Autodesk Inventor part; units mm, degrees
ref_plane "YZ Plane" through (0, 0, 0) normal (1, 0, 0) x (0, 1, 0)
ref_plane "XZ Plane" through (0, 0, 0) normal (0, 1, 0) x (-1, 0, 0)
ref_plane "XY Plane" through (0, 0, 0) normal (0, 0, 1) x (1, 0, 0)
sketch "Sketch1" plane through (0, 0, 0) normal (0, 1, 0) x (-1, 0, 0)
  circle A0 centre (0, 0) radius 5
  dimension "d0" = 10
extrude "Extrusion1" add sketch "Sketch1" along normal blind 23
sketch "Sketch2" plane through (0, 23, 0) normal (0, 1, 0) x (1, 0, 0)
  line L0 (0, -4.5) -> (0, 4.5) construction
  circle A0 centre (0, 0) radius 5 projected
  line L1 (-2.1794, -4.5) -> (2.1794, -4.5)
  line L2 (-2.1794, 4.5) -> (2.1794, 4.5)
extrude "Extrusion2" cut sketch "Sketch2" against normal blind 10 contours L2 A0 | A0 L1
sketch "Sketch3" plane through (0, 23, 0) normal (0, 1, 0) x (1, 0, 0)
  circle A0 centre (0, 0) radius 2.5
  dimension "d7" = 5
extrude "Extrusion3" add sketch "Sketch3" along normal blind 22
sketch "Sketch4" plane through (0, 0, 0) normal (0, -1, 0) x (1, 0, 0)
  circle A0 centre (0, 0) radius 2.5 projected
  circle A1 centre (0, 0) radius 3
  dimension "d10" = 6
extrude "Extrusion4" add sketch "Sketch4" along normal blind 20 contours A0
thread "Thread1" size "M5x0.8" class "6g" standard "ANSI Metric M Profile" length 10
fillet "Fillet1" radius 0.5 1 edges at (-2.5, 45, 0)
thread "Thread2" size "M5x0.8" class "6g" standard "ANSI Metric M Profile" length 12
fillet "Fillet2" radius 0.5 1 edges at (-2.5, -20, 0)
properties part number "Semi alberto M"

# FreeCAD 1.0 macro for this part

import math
import FreeCAD as App
import Part
import Sketcher


def edges_at(feature, points):
    """Names of the edges that pass closest to the given points."""
    edges = feature.Shape.Edges
    near = lambda p: min(range(len(edges)), key=lambda i: edges[i].distToShape(Part.Vertex(*p))[0])
    return sorted({f"Edge{near(p) + 1}" for p in points})

doc = App.newDocument("Part")
params = doc.addObject("Spreadsheet::Sheet", "Params")
for row, (alias, value) in enumerate([
    ("sketch1_diameter", "10 mm"),
    ("pad1_length", "23 mm"),
    ("sketch2_radius", "5 mm"),
    ("pocket1_length", "10 mm"),
    ("sketch3_diameter", "5 mm"),
    ("pad2_length", "22 mm"),
    ("sketch4_diameter", "5 mm"),
    ("pad3_length", "20 mm"),
    ("fillet_radius", "0.5 mm"),
    ("fillet2_radius", "0.5 mm"),
], start=1):
    params.set(f"A{row}", alias)
    params.set(f"B{row}", "=" + value)
    params.setAlias(f"B{row}", alias)

body = doc.addObject("PartDesign::Body", "Body")

# Sketch on XZ plane
sketch1 = body.newObject("Sketcher::SketchObject", "Sketch")
sketch1.AttachmentSupport = (doc.getObject("XZ_Plane"), [""])
sketch1.MapMode = "FlatFace"
sketch1.addGeometry(Part.Circle(App.Vector(0, 0, 0), App.Vector(0, 0, 1), 5), False)
sketch1.addConstraint(Sketcher.Constraint("Coincident", 0, 3, -1, 1))
sketch1.addConstraint(Sketcher.Constraint("Diameter", 0, 10.0))
sketch1.setExpression("Constraints[1]", "Params.sketch1_diameter")
pad1 = body.newObject("PartDesign::Pad", "Pad")
pad1.Profile = sketch1
pad1.setExpression("Length", "Params.pad1_length")
pad1.Reversed = True

# Sketch on XZ plane
sketch2 = body.newObject("Sketcher::SketchObject", "Sketch001")
sketch2.AttachmentSupport = (doc.getObject("XZ_Plane"), [""])
sketch2.MapMode = "FlatFace"
sketch2.AttachmentOffset = App.Placement(App.Vector(0, 0, -23), App.Rotation())
sketch2.addGeometry(Part.LineSegment(App.Vector(-2.2, -4.5, 0), App.Vector(2.2, -4.5, 0)), False)
sketch2.addGeometry(Part.ArcOfCircle(Part.Circle(App.Vector(0, 0, 0), App.Vector(0, 0, 1), 5), math.radians(-116), math.radians(-64)), False)
sketch2.addGeometry(Part.ArcOfCircle(Part.Circle(App.Vector(0, 0, 0), App.Vector(0, 0, 1), 5), math.radians(64), math.radians(116)), False)
sketch2.addGeometry(Part.LineSegment(App.Vector(-2.2, 4.5, 0), App.Vector(2.2, 4.5, 0)), False)
sketch2.addConstraint(Sketcher.Constraint("Coincident", 0, 1, 1, 1))
sketch2.addConstraint(Sketcher.Constraint("Coincident", 1, 2, 0, 2))
sketch2.addConstraint(Sketcher.Constraint("Coincident", 2, 1, 3, 2))
sketch2.addConstraint(Sketcher.Constraint("Coincident", 3, 1, 2, 2))
sketch2.addConstraint(Sketcher.Constraint("Horizontal", 0))
sketch2.addConstraint(Sketcher.Constraint("Horizontal", 3))
sketch2.addConstraint(Sketcher.Constraint("Coincident", 1, 3, -1, 1))
sketch2.addConstraint(Sketcher.Constraint("Coincident", 2, 3, -1, 1))
sketch2.addConstraint(Sketcher.Constraint("Equal", 1, 2))
sketch2.addConstraint(Sketcher.Constraint("Vertical", 1, 2, 2, 1))
sketch2.addConstraint(Sketcher.Constraint("Radius", 1, 5.0))
sketch2.addConstraint(Sketcher.Constraint("DistanceY", 1, 2, 2, 1, 9.0))
sketch2.setExpression("Constraints[10]", "Params.sketch2_radius")
pocket1 = body.newObject("PartDesign::Pocket", "Pocket")
pocket1.Profile = sketch2
pocket1.setExpression("Length", "Params.pocket1_length")
pocket1.Reversed = True

# Sketch on XZ plane
sketch3 = body.newObject("Sketcher::SketchObject", "Sketch002")
sketch3.AttachmentSupport = (doc.getObject("XZ_Plane"), [""])
sketch3.MapMode = "FlatFace"
sketch3.AttachmentOffset = App.Placement(App.Vector(0, 0, -23), App.Rotation())
sketch3.addGeometry(Part.Circle(App.Vector(0, 0, 0), App.Vector(0, 0, 1), 2.5), False)
sketch3.addConstraint(Sketcher.Constraint("Coincident", 0, 3, -1, 1))
sketch3.addConstraint(Sketcher.Constraint("Diameter", 0, 5.0))
sketch3.setExpression("Constraints[1]", "Params.sketch3_diameter")
pad2 = body.newObject("PartDesign::Pad", "Pad001")
pad2.Profile = sketch3
pad2.setExpression("Length", "Params.pad2_length")
pad2.Reversed = True

# Sketch on XZ plane
sketch4 = body.newObject("Sketcher::SketchObject", "Sketch003")
sketch4.AttachmentSupport = (doc.getObject("XZ_Plane"), [""])
sketch4.MapMode = "FlatFace"
sketch4.addGeometry(Part.Circle(App.Vector(0, 0, 0), App.Vector(0, 0, 1), 2.5), False)
sketch4.addConstraint(Sketcher.Constraint("Coincident", 0, 3, -1, 1))
sketch4.addConstraint(Sketcher.Constraint("Diameter", 0, 5.0))
sketch4.setExpression("Constraints[1]", "Params.sketch4_diameter")
pad3 = body.newObject("PartDesign::Pad", "Pad002")
pad3.Profile = sketch4
pad3.setExpression("Length", "Params.pad3_length")
doc.recompute()

fillet = body.newObject("PartDesign::Fillet", "Fillet")
fillet.Base = (pad3, edges_at(pad3, [(-2.5, 45, 0)]))
fillet.setExpression("Radius", "Params.fillet_radius")
doc.recompute()

fillet2 = body.newObject("PartDesign::Fillet", "Fillet001")
fillet2.Base = (fillet, edges_at(fillet, [(-2.5, -20, 0)]))
fillet2.setExpression("Radius", "Params.fillet2_radius")

doc.recompute()
